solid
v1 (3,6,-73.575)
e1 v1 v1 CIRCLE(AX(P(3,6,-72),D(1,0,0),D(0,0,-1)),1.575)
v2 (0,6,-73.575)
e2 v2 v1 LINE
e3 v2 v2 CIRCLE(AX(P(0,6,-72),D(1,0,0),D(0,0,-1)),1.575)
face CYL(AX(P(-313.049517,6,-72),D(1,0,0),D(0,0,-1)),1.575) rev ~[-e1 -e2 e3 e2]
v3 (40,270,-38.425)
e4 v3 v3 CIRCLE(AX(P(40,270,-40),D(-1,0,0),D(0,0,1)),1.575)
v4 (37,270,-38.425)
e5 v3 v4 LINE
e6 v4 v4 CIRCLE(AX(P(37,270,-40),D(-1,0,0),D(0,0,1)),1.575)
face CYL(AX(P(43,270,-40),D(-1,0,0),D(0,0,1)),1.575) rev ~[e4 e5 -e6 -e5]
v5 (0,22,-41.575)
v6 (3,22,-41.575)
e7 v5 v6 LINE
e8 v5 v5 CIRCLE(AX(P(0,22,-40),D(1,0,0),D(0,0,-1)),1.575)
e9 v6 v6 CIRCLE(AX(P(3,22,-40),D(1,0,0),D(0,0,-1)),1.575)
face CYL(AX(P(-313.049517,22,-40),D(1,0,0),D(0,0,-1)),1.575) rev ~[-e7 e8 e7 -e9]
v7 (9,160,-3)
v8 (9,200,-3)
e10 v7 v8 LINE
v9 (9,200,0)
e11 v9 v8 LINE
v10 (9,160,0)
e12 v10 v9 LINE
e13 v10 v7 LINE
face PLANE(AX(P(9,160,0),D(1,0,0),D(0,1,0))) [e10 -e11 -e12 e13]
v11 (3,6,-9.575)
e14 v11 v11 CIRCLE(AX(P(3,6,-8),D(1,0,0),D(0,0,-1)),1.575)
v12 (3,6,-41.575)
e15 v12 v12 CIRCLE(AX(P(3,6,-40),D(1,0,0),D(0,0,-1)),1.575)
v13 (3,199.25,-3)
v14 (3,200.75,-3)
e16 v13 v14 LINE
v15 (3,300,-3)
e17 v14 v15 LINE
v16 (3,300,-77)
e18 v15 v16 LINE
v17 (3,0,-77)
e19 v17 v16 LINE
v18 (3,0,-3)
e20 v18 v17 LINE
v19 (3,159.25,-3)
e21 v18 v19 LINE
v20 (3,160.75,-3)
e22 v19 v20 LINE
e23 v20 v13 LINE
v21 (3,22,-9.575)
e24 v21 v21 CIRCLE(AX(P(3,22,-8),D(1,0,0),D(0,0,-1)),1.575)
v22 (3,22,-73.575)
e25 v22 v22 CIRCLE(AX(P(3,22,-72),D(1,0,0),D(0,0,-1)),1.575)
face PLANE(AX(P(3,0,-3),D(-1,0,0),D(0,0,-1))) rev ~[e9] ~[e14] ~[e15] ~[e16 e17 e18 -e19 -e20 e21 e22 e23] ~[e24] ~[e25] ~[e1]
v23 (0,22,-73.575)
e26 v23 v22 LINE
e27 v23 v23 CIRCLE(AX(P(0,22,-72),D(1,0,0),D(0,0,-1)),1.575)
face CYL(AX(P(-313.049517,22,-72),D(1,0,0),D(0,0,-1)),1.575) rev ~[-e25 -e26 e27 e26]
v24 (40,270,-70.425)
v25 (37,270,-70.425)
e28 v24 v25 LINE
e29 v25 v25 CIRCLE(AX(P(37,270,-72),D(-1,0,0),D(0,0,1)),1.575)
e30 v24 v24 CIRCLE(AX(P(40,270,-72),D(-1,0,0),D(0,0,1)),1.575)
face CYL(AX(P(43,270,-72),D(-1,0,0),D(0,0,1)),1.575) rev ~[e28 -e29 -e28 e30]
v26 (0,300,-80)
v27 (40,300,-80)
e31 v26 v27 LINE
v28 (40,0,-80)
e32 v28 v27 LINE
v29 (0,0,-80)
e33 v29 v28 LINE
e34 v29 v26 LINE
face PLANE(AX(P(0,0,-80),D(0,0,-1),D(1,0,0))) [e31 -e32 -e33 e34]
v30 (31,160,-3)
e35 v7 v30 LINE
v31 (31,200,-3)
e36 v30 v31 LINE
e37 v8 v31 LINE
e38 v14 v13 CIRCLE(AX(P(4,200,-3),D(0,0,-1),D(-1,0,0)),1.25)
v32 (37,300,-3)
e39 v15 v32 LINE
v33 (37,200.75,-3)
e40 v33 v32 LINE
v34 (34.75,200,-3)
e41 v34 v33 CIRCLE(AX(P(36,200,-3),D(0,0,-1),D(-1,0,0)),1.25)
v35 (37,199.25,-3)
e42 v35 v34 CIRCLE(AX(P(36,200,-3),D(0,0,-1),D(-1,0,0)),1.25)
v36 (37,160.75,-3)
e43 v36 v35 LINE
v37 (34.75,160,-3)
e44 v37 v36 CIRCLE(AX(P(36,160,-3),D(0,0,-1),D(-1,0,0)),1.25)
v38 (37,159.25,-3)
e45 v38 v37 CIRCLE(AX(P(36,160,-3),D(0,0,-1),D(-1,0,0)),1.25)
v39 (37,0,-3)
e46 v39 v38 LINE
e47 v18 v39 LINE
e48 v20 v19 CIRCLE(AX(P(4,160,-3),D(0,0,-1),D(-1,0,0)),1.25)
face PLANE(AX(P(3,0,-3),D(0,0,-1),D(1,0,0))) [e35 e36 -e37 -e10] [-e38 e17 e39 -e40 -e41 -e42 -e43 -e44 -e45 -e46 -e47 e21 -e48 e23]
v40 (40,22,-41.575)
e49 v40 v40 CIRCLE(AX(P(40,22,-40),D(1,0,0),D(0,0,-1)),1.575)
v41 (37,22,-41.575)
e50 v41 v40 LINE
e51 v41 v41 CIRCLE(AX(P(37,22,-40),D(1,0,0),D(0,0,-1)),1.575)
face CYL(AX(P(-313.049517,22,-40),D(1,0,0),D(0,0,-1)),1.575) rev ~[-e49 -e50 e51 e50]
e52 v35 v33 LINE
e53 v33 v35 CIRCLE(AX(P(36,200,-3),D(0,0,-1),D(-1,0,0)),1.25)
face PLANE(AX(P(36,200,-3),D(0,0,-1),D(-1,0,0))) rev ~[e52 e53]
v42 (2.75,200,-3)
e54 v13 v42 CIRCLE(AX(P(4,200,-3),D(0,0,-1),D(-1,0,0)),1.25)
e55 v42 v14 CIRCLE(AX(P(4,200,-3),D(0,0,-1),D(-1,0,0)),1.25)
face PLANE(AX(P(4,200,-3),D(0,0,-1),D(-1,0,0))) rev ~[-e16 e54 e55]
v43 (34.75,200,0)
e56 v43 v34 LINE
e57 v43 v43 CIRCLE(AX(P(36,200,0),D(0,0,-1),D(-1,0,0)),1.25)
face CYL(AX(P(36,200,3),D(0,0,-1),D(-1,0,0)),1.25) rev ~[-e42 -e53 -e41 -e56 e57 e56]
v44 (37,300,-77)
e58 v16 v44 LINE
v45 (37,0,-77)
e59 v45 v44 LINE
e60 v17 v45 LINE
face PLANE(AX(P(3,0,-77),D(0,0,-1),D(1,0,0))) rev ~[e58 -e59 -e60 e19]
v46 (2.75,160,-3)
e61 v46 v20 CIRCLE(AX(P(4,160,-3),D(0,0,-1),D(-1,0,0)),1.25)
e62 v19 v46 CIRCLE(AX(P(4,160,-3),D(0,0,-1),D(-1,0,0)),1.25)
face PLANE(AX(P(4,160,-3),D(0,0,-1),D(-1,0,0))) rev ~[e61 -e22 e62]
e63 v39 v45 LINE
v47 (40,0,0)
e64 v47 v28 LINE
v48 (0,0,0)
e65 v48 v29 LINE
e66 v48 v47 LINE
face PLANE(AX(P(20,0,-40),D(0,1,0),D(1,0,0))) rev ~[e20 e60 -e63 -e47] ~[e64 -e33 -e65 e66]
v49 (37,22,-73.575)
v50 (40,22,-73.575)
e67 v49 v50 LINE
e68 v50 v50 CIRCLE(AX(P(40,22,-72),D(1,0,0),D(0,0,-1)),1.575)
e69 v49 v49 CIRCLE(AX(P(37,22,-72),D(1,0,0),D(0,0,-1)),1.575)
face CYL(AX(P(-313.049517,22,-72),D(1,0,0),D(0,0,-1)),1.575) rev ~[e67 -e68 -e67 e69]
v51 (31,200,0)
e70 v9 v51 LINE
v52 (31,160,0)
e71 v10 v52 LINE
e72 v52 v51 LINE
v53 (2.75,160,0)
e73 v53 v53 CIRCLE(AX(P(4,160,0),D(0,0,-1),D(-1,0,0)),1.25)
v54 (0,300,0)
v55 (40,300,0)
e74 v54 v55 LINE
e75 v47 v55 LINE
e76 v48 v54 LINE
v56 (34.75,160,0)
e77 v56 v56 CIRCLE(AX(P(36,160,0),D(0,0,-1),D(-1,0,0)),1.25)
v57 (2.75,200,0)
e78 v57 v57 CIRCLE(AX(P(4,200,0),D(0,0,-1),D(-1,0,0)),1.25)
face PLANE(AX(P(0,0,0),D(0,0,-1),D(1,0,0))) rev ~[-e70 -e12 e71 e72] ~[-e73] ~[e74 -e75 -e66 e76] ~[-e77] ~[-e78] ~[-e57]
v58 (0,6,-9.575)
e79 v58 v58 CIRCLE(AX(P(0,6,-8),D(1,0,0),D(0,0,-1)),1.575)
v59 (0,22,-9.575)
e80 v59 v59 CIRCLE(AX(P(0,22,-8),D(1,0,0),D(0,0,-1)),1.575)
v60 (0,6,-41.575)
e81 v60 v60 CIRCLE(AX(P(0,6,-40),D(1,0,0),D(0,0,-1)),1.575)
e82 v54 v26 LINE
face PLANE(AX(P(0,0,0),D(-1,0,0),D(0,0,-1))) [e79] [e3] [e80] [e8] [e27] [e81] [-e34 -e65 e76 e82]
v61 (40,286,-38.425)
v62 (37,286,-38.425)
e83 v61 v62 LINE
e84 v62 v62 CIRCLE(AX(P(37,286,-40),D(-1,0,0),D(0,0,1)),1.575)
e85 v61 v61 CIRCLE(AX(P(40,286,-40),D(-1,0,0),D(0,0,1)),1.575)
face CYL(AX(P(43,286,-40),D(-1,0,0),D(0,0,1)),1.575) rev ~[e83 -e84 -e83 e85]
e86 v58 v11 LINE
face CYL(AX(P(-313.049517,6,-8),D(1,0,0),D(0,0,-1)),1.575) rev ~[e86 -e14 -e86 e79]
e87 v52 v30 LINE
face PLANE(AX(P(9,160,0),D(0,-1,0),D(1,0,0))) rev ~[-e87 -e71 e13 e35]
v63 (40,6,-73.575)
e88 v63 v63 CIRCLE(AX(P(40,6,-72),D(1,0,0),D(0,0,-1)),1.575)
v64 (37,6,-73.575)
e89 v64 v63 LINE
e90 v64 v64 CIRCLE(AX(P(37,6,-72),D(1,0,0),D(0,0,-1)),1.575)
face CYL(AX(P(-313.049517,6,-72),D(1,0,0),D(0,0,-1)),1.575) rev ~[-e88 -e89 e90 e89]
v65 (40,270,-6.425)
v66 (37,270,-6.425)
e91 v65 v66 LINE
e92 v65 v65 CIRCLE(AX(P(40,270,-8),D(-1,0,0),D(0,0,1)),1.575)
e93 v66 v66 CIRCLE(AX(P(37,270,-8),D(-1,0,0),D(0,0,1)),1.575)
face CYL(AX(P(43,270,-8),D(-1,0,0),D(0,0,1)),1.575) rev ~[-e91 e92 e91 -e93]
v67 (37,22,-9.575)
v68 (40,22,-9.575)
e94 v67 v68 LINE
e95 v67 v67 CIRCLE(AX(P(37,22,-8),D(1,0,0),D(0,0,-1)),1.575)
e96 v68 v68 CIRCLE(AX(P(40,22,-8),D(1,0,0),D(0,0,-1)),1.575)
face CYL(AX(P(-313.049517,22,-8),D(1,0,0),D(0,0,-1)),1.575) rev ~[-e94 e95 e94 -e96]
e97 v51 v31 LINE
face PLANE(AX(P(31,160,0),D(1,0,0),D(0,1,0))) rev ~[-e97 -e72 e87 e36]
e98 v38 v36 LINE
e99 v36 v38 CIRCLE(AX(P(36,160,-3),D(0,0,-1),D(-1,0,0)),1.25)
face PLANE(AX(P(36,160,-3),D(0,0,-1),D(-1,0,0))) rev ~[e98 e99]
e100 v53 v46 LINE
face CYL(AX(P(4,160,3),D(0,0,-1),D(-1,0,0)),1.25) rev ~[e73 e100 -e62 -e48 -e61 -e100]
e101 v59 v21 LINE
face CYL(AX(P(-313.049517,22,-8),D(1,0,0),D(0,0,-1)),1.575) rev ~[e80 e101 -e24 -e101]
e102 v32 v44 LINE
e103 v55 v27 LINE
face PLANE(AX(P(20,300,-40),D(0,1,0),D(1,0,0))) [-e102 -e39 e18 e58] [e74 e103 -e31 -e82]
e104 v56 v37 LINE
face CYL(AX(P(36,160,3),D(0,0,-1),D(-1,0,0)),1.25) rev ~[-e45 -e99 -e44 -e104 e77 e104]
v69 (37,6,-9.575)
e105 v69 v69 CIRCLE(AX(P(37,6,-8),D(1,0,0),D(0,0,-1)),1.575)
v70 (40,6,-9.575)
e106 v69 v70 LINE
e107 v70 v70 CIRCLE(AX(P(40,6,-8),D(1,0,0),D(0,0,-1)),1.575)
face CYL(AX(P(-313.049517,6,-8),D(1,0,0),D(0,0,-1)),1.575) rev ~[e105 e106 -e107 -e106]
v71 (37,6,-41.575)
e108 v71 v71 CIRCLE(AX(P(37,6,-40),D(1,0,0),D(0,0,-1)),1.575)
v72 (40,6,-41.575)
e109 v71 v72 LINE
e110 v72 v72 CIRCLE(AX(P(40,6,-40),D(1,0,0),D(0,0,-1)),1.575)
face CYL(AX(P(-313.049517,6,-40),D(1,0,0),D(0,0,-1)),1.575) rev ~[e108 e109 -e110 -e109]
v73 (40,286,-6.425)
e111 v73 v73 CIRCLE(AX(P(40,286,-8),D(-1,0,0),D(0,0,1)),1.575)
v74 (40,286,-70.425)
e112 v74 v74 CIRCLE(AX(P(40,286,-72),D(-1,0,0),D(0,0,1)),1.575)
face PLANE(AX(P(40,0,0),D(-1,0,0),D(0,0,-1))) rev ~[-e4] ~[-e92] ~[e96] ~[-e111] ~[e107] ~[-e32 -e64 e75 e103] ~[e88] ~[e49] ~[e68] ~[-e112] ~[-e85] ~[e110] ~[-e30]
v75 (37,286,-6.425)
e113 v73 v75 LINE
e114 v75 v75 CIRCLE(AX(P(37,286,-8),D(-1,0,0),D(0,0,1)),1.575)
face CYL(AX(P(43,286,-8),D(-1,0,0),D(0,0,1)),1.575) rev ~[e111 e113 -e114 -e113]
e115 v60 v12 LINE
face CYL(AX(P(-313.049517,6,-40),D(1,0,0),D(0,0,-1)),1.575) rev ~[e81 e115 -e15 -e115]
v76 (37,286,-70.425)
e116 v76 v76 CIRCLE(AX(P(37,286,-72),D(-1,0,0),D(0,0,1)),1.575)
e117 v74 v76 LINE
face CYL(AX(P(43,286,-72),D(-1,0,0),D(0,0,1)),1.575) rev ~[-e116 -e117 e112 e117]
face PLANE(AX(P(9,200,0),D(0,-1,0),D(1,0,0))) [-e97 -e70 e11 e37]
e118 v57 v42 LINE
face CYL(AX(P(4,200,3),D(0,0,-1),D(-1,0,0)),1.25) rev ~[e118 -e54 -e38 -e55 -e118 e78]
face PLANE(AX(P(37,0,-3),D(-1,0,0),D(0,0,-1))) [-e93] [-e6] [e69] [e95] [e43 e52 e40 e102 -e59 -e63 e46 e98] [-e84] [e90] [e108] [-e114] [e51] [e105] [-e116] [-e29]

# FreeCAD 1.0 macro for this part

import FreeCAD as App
import Part
import Sketcher

V = App.Vector
Q = App.Units.Quantity

doc = App.newDocument("Part")
params = doc.addObject("Spreadsheet::Sheet", "Params")
for row, (alias, value) in enumerate([
    ("sketch1_width", "40 mm"),
    ("sketch1_width2", "34 mm"),
    ("sketch1_height", "80 mm"),
    ("sketch1_height2", "74 mm"),
    ("pad1_length", "300 mm"),
    ("sketch2_width", "22 mm"),
    ("sketch2_height", "40 mm"),
    ("sketch3_diameter", "2.5 mm"),
    ("hole_diameter", "2.5 mm"),
    ("hole_depth", "3 mm"),
    ("sketch4_diameter", "3.15 mm"),
    ("hole2_diameter", "3.15 mm"),
    ("sketch5_diameter", "3.15 mm"),
    ("hole3_diameter", "3.15 mm"),
    ("hole3_depth", "3 mm"),
], start=1):
    params.set(f"A{row}", alias)
    params.set(f"B{row}", "=" + value)
    params.setAlias(f"B{row}", alias)

body = doc.addObject("PartDesign::Body", "Body")

# Sketch on XZ plane
sketch1 = body.newObject("Sketcher::SketchObject", "Sketch")
sketch1.AttachmentSupport = (doc.getObject("XZ_Plane"), [""])
sketch1.MapMode = "FlatFace"
sketch1.addGeometry([
    Part.LineSegment(V(0, -80, 0), V(0, 0, 0)),  # 0
    Part.LineSegment(V(0, 0, 0), V(40, 0, 0)),  # 1
    Part.LineSegment(V(40, 0, 0), V(40, -80, 0)),  # 2
    Part.LineSegment(V(40, -80, 0), V(0, -80, 0)),  # 3
    Part.LineSegment(V(37, -3, 0), V(3, -3, 0)),  # 4
    Part.LineSegment(V(3, -3, 0), V(3, -77, 0)),  # 5
    Part.LineSegment(V(3, -77, 0), V(37, -77, 0)),  # 6
    Part.LineSegment(V(37, -77, 0), V(37, -3, 0)),  # 7
], False)
sketch1.addConstraint([
    Sketcher.Constraint("Coincident", 0, 2, 1, 1),
    Sketcher.Constraint("Coincident", 1, 2, 2, 1),
    Sketcher.Constraint("Coincident", 2, 2, 3, 1),
    Sketcher.Constraint("Coincident", 3, 2, 0, 1),
    Sketcher.Constraint("Coincident", 4, 2, 5, 1),
    Sketcher.Constraint("Coincident", 5, 2, 6, 1),
    Sketcher.Constraint("Coincident", 6, 2, 7, 1),
    Sketcher.Constraint("Coincident", 7, 2, 4, 1),
    Sketcher.Constraint("Vertical", 0),
    Sketcher.Constraint("Horizontal", 1),
    Sketcher.Constraint("Vertical", 2),
    Sketcher.Constraint("Horizontal", 3),
    Sketcher.Constraint("Horizontal", 4),
    Sketcher.Constraint("Vertical", 5),
    Sketcher.Constraint("Horizontal", 6),
    Sketcher.Constraint("Vertical", 7),
    Sketcher.Constraint("Coincident", 0, 2, -1, 1),
    Sketcher.Constraint("DistanceX", 1, 1, 1, 2, Q("40 mm")),
    Sketcher.Constraint("DistanceX", 4, 2, 4, 1, Q("34 mm")),
    Sketcher.Constraint("DistanceY", 0, 1, 0, 2, Q("80 mm")),
    Sketcher.Constraint("DistanceY", 5, 2, 5, 1, Q("74 mm")),
    Sketcher.Constraint("DistanceX", -1, 1, 4, 2, Q("3 mm")),
    Sketcher.Constraint("DistanceY", 4, 2, -1, 1, Q("3 mm")),
])
sketch1.setExpression("Constraints[17]", "Params.sketch1_width")
sketch1.setExpression("Constraints[18]", "Params.sketch1_width2")
sketch1.setExpression("Constraints[19]", "Params.sketch1_height")
sketch1.setExpression("Constraints[20]", "Params.sketch1_height2")
pad1 = body.newObject("PartDesign::Pad", "Pad")
pad1.Profile = sketch1
pad1.setExpression("Length", "Params.pad1_length")
pad1.Reversed = True

# Sketch on XY plane
sketch2 = body.newObject("Sketcher::SketchObject", "Sketch001")
sketch2.AttachmentSupport = (doc.getObject("XY_Plane"), [""])
sketch2.MapMode = "FlatFace"
sketch2.addGeometry([
    Part.LineSegment(V(9, 200, 0), V(9, 160, 0)),
    Part.LineSegment(V(9, 160, 0), V(31, 160, 0)),
    Part.LineSegment(V(31, 160, 0), V(31, 200, 0)),
    Part.LineSegment(V(31, 200, 0), V(9, 200, 0)),
], False)
sketch2.addConstraint([
    Sketcher.Constraint("Coincident", 0, 2, 1, 1),
    Sketcher.Constraint("Coincident", 1, 2, 2, 1),
    Sketcher.Constraint("Coincident", 2, 2, 3, 1),
    Sketcher.Constraint("Coincident", 3, 2, 0, 1),
    Sketcher.Constraint("Vertical", 0),
    Sketcher.Constraint("Horizontal", 1),
    Sketcher.Constraint("Vertical", 2),
    Sketcher.Constraint("Horizontal", 3),
    Sketcher.Constraint("DistanceX", 1, 1, 1, 2, Q("22 mm")),
    Sketcher.Constraint("DistanceY", 0, 2, 0, 1, Q("40 mm")),
    Sketcher.Constraint("DistanceX", -1, 1, 0, 2, Q("9 mm")),
    Sketcher.Constraint("DistanceY", -1, 1, 0, 2, Q("160 mm")),
])
sketch2.setExpression("Constraints[8]", "Params.sketch2_width")
sketch2.setExpression("Constraints[9]", "Params.sketch2_height")
pocket1 = body.newObject("PartDesign::Pocket", "Pocket")
pocket1.Profile = sketch2
pocket1.Type = "UpToFirst"

# Sketch on XY plane
sketch3 = body.newObject("Sketcher::SketchObject", "Sketch002")
sketch3.AttachmentSupport = (doc.getObject("XY_Plane"), [""])
sketch3.MapMode = "FlatFace"
sketch3.addGeometry([
    Part.Circle(V(4, 200, 0), V(0, 0, 1), 1.2),
    Part.Circle(V(36, 200, 0), V(0, 0, 1), 1.2),
    Part.Circle(V(36, 160, 0), V(0, 0, 1), 1.2),
    Part.Circle(V(4, 160, 0), V(0, 0, 1), 1.2),
], False)
sketch3.addConstraint([
    Sketcher.Constraint("Equal", 0, 1),
    Sketcher.Constraint("Equal", 1, 2),
    Sketcher.Constraint("Equal", 2, 3),
    Sketcher.Constraint("Horizontal", 0, 3, 1, 3),
    Sketcher.Constraint("Horizontal", 2, 3, 3, 3),
    Sketcher.Constraint("Vertical", 1, 3, 2, 3),
    Sketcher.Constraint("Vertical", 0, 3, 3, 3),
    Sketcher.Constraint("Diameter", 0, Q("2.5 mm")),
    Sketcher.Constraint("DistanceX", -1, 1, 0, 3, Q("4 mm")),
    Sketcher.Constraint("DistanceY", -1, 1, 0, 3, Q("200 mm")),
    Sketcher.Constraint("DistanceX", -1, 1, 1, 3, Q("36 mm")),
    Sketcher.Constraint("DistanceY", -1, 1, 2, 3, Q("160 mm")),
])
sketch3.setExpression("Constraints[7]", "Params.sketch3_diameter")
doc.recompute()
hole = body.newObject("PartDesign::Hole", "Hole")
hole.Profile = sketch3
hole.ThreadType = "None"
hole.setExpression("Diameter", "Params.hole_diameter")
hole.DepthType = "Dimension"
hole.setExpression("Depth", "Params.hole_depth")
hole.DrillPoint = "Flat"

# Sketch on YZ plane
sketch4 = body.newObject("Sketcher::SketchObject", "Sketch003")
sketch4.AttachmentSupport = (doc.getObject("YZ_Plane"), [""])
sketch4.MapMode = "FlatFace"
sketch4.addGeometry([
    Part.Circle(V(6, -8, 0), V(0, 0, 1), 1.6),  # 0
    Part.Circle(V(6, -40, 0), V(0, 0, 1), 1.6),  # 1
    Part.Circle(V(6, -72, 0), V(0, 0, 1), 1.6),  # 2
    Part.Circle(V(22, -40, 0), V(0, 0, 1), 1.6),  # 3
    Part.Circle(V(22, -72, 0), V(0, 0, 1), 1.6),  # 4
    Part.Circle(V(22, -8, 0), V(0, 0, 1), 1.6),  # 5
], False)
sketch4.addConstraint([
    Sketcher.Constraint("Equal", 0, 1),
    Sketcher.Constraint("Equal", 1, 2),
    Sketcher.Constraint("Equal", 2, 3),
    Sketcher.Constraint("Equal", 3, 4),
    Sketcher.Constraint("Equal", 4, 5),
    Sketcher.Constraint("Horizontal", 1, 3, 3, 3),
    Sketcher.Constraint("Horizontal", 2, 3, 4, 3),
    Sketcher.Constraint("Horizontal", 0, 3, 5, 3),
    Sketcher.Constraint("Vertical", 0, 3, 1, 3),
    Sketcher.Constraint("Vertical", 1, 3, 2, 3),
    Sketcher.Constraint("Vertical", 3, 3, 4, 3),
    Sketcher.Constraint("Vertical", 4, 3, 5, 3),
    Sketcher.Constraint("Diameter", 0, Q("3.15 mm")),
    Sketcher.Constraint("DistanceX", -1, 1, 0, 3, Q("6 mm")),
    Sketcher.Constraint("DistanceY", 0, 3, -1, 1, Q("8 mm")),
    Sketcher.Constraint("DistanceY", 1, 3, -1, 1, Q("40 mm")),
    Sketcher.Constraint("DistanceY", 2, 3, -1, 1, Q("72 mm")),
    Sketcher.Constraint("DistanceX", -1, 1, 3, 3, Q("22 mm")),
])
sketch4.setExpression("Constraints[12]", "Params.sketch4_diameter")
doc.recompute()
hole2 = body.newObject("PartDesign::Hole", "Hole001")
hole2.Profile = sketch4
hole2.ThreadType = "None"
hole2.setExpression("Diameter", "Params.hole2_diameter")
hole2.DepthType = "ThroughAll"
hole2.Reversed = True

# Sketch on YZ plane
sketch5 = body.newObject("Sketcher::SketchObject", "Sketch004")
sketch5.AttachmentSupport = (doc.getObject("YZ_Plane"), [""])
sketch5.MapMode = "FlatFace"
sketch5.AttachmentOffset = App.Placement(V(0, 0, 40), App.Rotation())
sketch5.addGeometry([
    Part.Circle(V(286, -72, 0), V(0, 0, 1), 1.6),  # 0
    Part.Circle(V(270, -72, 0), V(0, 0, 1), 1.6),  # 1
    Part.Circle(V(286, -40, 0), V(0, 0, 1), 1.6),  # 2
    Part.Circle(V(270, -40, 0), V(0, 0, 1), 1.6),  # 3
    Part.Circle(V(286, -8, 0), V(0, 0, 1), 1.6),  # 4
    Part.Circle(V(270, -8, 0), V(0, 0, 1), 1.6),  # 5
], False)
sketch5.addConstraint([
    Sketcher.Constraint("Equal", 0, 1),
    Sketcher.Constraint("Equal", 1, 2),
    Sketcher.Constraint("Equal", 2, 3),
    Sketcher.Constraint("Equal", 3, 4),
    Sketcher.Constraint("Equal", 4, 5),
    Sketcher.Constraint("Horizontal", 0, 3, 1, 3),
    Sketcher.Constraint("Horizontal", 2, 3, 3, 3),
    Sketcher.Constraint("Horizontal", 4, 3, 5, 3),
    Sketcher.Constraint("Vertical", 0, 3, 2, 3),
    Sketcher.Constraint("Vertical", 1, 3, 3, 3),
    Sketcher.Constraint("Vertical", 2, 3, 4, 3),
    Sketcher.Constraint("Vertical", 3, 3, 5, 3),
    Sketcher.Constraint("Diameter", 0, Q("3.15 mm")),
    Sketcher.Constraint("DistanceX", -1, 1, 0, 3, Q("286 mm")),
    Sketcher.Constraint("DistanceY", 0, 3, -1, 1, Q("72 mm")),
    Sketcher.Constraint("DistanceX", -1, 1, 1, 3, Q("270 mm")),
    Sketcher.Constraint("DistanceY", 2, 3, -1, 1, Q("40 mm")),
    Sketcher.Constraint("DistanceY", 4, 3, -1, 1, Q("8 mm")),
])
sketch5.setExpression("Constraints[12]", "Params.sketch5_diameter")
doc.recompute()
hole3 = body.newObject("PartDesign::Hole", "Hole002")
hole3.Profile = sketch5
hole3.ThreadType = "None"
hole3.setExpression("Diameter", "Params.hole3_diameter")
hole3.DepthType = "Dimension"
hole3.setExpression("Depth", "Params.hole3_depth")
hole3.DrillPoint = "Flat"

doc.recompute()
